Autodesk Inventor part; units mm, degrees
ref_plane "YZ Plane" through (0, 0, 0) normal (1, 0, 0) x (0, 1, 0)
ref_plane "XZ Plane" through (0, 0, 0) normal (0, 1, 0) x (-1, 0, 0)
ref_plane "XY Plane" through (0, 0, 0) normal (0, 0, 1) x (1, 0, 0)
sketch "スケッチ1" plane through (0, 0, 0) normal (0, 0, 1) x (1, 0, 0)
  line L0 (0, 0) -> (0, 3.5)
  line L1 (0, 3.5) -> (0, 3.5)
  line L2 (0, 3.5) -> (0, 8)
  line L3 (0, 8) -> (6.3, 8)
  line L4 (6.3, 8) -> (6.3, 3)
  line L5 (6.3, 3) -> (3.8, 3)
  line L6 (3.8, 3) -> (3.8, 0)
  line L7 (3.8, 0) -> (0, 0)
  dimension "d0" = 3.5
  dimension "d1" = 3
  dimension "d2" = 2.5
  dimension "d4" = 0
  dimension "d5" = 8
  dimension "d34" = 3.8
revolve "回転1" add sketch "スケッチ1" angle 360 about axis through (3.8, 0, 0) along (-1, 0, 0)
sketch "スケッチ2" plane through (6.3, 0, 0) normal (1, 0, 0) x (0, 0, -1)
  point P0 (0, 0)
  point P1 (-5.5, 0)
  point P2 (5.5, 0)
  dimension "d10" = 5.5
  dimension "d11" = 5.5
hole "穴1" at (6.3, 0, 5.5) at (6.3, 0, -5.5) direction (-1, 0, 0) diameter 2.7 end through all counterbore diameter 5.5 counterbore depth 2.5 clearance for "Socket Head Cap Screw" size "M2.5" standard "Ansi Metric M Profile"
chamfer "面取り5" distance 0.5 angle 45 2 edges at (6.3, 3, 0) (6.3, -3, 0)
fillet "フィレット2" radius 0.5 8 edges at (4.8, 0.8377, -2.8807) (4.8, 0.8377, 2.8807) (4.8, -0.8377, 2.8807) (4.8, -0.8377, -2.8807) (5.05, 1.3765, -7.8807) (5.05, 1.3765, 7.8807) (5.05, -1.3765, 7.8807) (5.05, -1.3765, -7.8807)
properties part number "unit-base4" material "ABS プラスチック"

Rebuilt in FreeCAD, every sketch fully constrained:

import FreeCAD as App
import Part
import Sketcher

V = App.Vector


def edges_at(feature, points):
    """Names of the edges that pass closest to the given points."""
    edges = feature.Shape.Edges
    near = lambda p: min(range(len(edges)), key=lambda i: edges[i].distToShape(Part.Vertex(*p))[0])
    return sorted({f"Edge{near(p) + 1}" for p in points})

doc = App.newDocument("Part")
body = doc.addObject("PartDesign::Body", "Body")

sketch1 = doc.addObject("Sketcher::SketchObject", "Sketch")
body.addObject(sketch1)
sketch1.AttachmentSupport = (doc.XY_Plane, [""])
sketch1.MapMode = "FlatFace"
sketch1.addGeometry(Part.LineSegment(V(0, 8, 0), V(0, 0, 0)), False)
sketch1.addGeometry(Part.LineSegment(V(0, 0, 0), V(3.8, 0, 0)), False)
sketch1.addGeometry(Part.LineSegment(V(3.8, 0, 0), V(3.8, 3, 0)), False)
sketch1.addGeometry(Part.LineSegment(V(3.8, 3, 0), V(6.3, 3, 0)), False)
sketch1.addGeometry(Part.LineSegment(V(6.3, 3, 0), V(6.3, 8, 0)), False)
sketch1.addGeometry(Part.LineSegment(V(6.3, 8, 0), V(0, 8, 0)), False)
sketch1.addConstraint(Sketcher.Constraint("Coincident", 0, 2, 1, 1))
sketch1.addConstraint(Sketcher.Constraint("Coincident", 1, 2, 2, 1))
sketch1.addConstraint(Sketcher.Constraint("Coincident", 2, 2, 3, 1))
sketch1.addConstraint(Sketcher.Constraint("Coincident", 3, 2, 4, 1))
sketch1.addConstraint(Sketcher.Constraint("Coincident", 4, 2, 5, 1))
sketch1.addConstraint(Sketcher.Constraint("Coincident", 5, 2, 0, 1))
sketch1.addConstraint(Sketcher.Constraint("Vertical", 0))
sketch1.addConstraint(Sketcher.Constraint("Horizontal", 1))
sketch1.addConstraint(Sketcher.Constraint("Vertical", 2))
sketch1.addConstraint(Sketcher.Constraint("Horizontal", 3))
sketch1.addConstraint(Sketcher.Constraint("Vertical", 4))
sketch1.addConstraint(Sketcher.Constraint("Horizontal", 5))
sketch1.addConstraint(Sketcher.Constraint("Coincident", 0, 2, -1, 1))
sketch1.addConstraint(Sketcher.Constraint("DistanceY", 0, 2, 0, 1, 8.0))
sketch1.addConstraint(Sketcher.Constraint("DistanceY", 2, 1, 2, 2, 3.0))
sketch1.addConstraint(Sketcher.Constraint("DistanceX", 1, 1, 1, 2, 3.8))
sketch1.addConstraint(Sketcher.Constraint("DistanceX", 3, 1, 3, 2, 2.5))
revolution = doc.addObject("PartDesign::Revolution", "Revolution")
body.addObject(revolution)
revolution.Profile = sketch1
revolution.ReferenceAxis = (sketch1, ["H_Axis"])
revolution.Angle = 360

sketch2 = doc.addObject("Sketcher::SketchObject", "Sketch001")
body.addObject(sketch2)
sketch2.AttachmentSupport = (doc.YZ_Plane, [""])
sketch2.MapMode = "FlatFace"
sketch2.AttachmentOffset = App.Placement(V(0, 0, 6.3), App.Rotation())
sketch2.addGeometry(Part.Circle(V(0, 5.5, 0), V(0, 0, 1), 1.4), False)
sketch2.addGeometry(Part.Circle(V(0, -5.5, 0), V(0, 0, 1), 1.4), False)
sketch2.addConstraint(Sketcher.Constraint("Equal", 0, 1))
sketch2.addConstraint(Sketcher.Constraint("Symmetric", 0, 3, 1, 3, -1, 1))
sketch2.addConstraint(Sketcher.Constraint("PointOnObject", 0, 3, -2))
sketch2.addConstraint(Sketcher.Constraint("Diameter", 0, 2.7))
sketch2.addConstraint(Sketcher.Constraint("DistanceY", 1, 3, 0, 3, 11.0))
doc.recompute()
hole = doc.addObject("PartDesign::Hole", "Hole")
body.addObject(hole)
hole.Profile = sketch2
hole.ThreadType = "None"
hole.Diameter = 2.7
hole.DepthType = "ThroughAll"
hole.HoleCutType = "Counterbore"
hole.HoleCutDiameter = 5.5
hole.HoleCutDepth = 2.5
doc.recompute()

chamfer = doc.addObject("PartDesign::Chamfer", "Chamfer")
body.addObject(chamfer)
chamfer.Base = (hole, edges_at(hole, [(6.3, 3, 0), (6.3, -3, 0)]))
chamfer.Size = 0.5
doc.recompute()

fillet = doc.addObject("PartDesign::Fillet", "Fillet")
body.addObject(fillet)
fillet.Base = (chamfer, edges_at(chamfer, [
    (4.8, 0.838, -2.881),
    (4.8, 0.838, 2.881),
    (4.8, -0.838, 2.881),
    (4.8, -0.838, -2.881),
    (5.05, 1.377, -7.881),
    (5.05, 1.377, 7.881),
    (5.05, -1.377, 7.881),
    (5.05, -1.377, -7.881),
]))
fillet.Radius = 0.5

doc.recompute()
